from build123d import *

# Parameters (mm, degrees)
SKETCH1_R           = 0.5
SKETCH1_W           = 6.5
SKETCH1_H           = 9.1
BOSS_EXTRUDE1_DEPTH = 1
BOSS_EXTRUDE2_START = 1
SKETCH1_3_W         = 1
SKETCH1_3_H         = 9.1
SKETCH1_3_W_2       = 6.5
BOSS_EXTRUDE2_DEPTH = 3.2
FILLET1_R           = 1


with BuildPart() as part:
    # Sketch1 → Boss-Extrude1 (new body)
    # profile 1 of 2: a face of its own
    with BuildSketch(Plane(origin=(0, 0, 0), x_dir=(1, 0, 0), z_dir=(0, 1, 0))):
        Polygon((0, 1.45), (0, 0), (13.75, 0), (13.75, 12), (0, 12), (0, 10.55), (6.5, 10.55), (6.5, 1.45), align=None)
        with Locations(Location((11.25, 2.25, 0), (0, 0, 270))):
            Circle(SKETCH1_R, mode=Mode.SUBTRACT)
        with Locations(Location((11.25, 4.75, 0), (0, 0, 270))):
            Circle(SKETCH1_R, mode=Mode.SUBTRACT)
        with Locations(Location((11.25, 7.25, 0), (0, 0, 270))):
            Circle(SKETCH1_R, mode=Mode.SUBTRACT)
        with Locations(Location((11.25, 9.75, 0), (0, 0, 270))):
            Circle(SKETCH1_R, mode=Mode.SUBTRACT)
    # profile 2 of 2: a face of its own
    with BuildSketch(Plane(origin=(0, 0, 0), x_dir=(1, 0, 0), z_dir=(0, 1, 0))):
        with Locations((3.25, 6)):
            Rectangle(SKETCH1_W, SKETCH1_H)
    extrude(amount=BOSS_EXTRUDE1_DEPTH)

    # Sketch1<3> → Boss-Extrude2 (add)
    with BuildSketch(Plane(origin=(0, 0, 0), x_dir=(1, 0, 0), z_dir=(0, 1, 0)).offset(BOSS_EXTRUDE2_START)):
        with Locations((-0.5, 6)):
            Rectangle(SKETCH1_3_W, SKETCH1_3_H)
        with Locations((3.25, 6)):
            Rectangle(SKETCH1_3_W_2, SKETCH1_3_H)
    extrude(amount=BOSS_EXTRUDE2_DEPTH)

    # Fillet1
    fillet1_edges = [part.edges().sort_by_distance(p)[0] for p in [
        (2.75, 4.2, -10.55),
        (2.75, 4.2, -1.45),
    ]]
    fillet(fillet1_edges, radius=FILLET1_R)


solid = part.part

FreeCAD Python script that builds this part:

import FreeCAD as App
import Part
import Sketcher

V = App.Vector


def edges_at(feature, points):
    """Names of the edges that pass closest to the given points."""
    edges = feature.Shape.Edges
    near = lambda p: min(range(len(edges)), key=lambda i: edges[i].distToShape(Part.Vertex(*p))[0])
    return sorted({f"Edge{near(p) + 1}" for p in points})

doc = App.newDocument("Part")
body = doc.addObject("PartDesign::Body", "Body")

# Sketch on XZ plane
sketch1 = doc.addObject("Sketcher::SketchObject", "Sketch")
body.addObject(sketch1)
sketch1.AttachmentSupport = (doc.XZ_Plane, [""])
sketch1.MapMode = "FlatFace"
sketch1.addGeometry([
    Part.LineSegment(V(0, 0, 0), V(13.8, 0, 0)),  # 0
    Part.LineSegment(V(13.8, 0, 0), V(13.8, -12, 0)),  # 1
    Part.LineSegment(V(13.8, -12, 0), V(0, -12, 0)),  # 2
    Part.LineSegment(V(0, -12, 0), V(0, 0, 0)),  # 3
    Part.Circle(V(11.2, -2.2, 0), V(0, 0, 1), 0.5),  # 4
    Part.Circle(V(11.2, -4.8, 0), V(0, 0, 1), 0.5),  # 5
    Part.Circle(V(11.2, -7.2, 0), V(0, 0, 1), 0.5),  # 6
    Part.Circle(V(11.2, -9.8, 0), V(0, 0, 1), 0.5),  # 7
], False)
sketch1.addConstraint([
    Sketcher.Constraint("Coincident", 0, 2, 1, 1),
    Sketcher.Constraint("Coincident", 1, 2, 2, 1),
    Sketcher.Constraint("Coincident", 2, 2, 3, 1),
    Sketcher.Constraint("Coincident", 3, 2, 0, 1),
    Sketcher.Constraint("Horizontal", 0),
    Sketcher.Constraint("Vertical", 1),
    Sketcher.Constraint("Horizontal", 2),
    Sketcher.Constraint("Vertical", 3),
    Sketcher.Constraint("Coincident", 3, 2, -1, 1),
    Sketcher.Constraint("Equal", 4, 5),
    Sketcher.Constraint("Equal", 5, 6),
    Sketcher.Constraint("Equal", 6, 7),
    Sketcher.Constraint("Vertical", 4, 3, 5, 3),
    Sketcher.Constraint("Vertical", 5, 3, 6, 3),
    Sketcher.Constraint("Vertical", 6, 3, 7, 3),
    Sketcher.Constraint("Diameter", 4, 1.0),
    Sketcher.Constraint("DistanceY", 1, 2, 1, 1, 12.0),
    Sketcher.Constraint("DistanceY", 6, 3, 4, 3, 5.0),
    Sketcher.Constraint("DistanceY", 7, 3, 5, 3, 5.0),
    Sketcher.Constraint("DistanceX", 0, 1, 0, 2, 13.75),
    Sketcher.Constraint("DistanceY", 5, 3, 4, 3, 2.5),
    Sketcher.Constraint("DistanceX", 4, 3, 0, 2, 2.5),
    Sketcher.Constraint("DistanceY", 4, 3, -1, 1, 2.25),
])
pad1 = doc.addObject("PartDesign::Pad", "Pad")
body.addObject(pad1)
pad1.Profile = sketch1
pad1.Length = 1
pad1.Reversed = True

# Sketch on XZ plane
sketch2 = doc.addObject("Sketcher::SketchObject", "Sketch001")
body.addObject(sketch2)
sketch2.AttachmentSupport = (doc.XZ_Plane, [""])
sketch2.MapMode = "FlatFace"
sketch2.AttachmentOffset = App.Placement(V(0, 0, -1), App.Rotation())
sketch2.addGeometry([
    Part.LineSegment(V(-1, -11, 0), V(-1, -1, 0)),
    Part.LineSegment(V(-1, -1, 0), V(6, -1, 0)),
    Part.LineSegment(V(6, -1, 0), V(6, -11, 0)),
    Part.LineSegment(V(6, -11, 0), V(-1, -11, 0)),
], False)
sketch2.addConstraint([
    Sketcher.Constraint("Coincident", 0, 2, 1, 1),
    Sketcher.Constraint("Coincident", 1, 2, 2, 1),
    Sketcher.Constraint("Coincident", 2, 2, 3, 1),
    Sketcher.Constraint("Coincident", 3, 2, 0, 1),
    Sketcher.Constraint("Vertical", 0),
    Sketcher.Constraint("Horizontal", 1),
    Sketcher.Constraint("Vertical", 2),
    Sketcher.Constraint("Horizontal", 3),
    Sketcher.Constraint("DistanceX", 1, 1, 1, 2, 7.5),
    Sketcher.Constraint("DistanceY", 0, 1, 0, 2, 9.1),
    Sketcher.Constraint("DistanceX", 0, 2, -1, 1, 1.0),
    Sketcher.Constraint("DistanceY", 0, 2, -1, 1, 1.45),
])
pad2 = doc.addObject("PartDesign::Pad", "Pad001")
body.addObject(pad2)
pad2.Profile = sketch2
pad2.Length = 3.2
pad2.Reversed = True
doc.recompute()

fillet = doc.addObject("PartDesign::Fillet", "Fillet")
body.addObject(fillet)
fillet.Base = (pad2, edges_at(pad2, [(2.75, 4.2, -10.55), (2.75, 4.2, -1.45)]))
fillet.Radius = 1

doc.recompute()
